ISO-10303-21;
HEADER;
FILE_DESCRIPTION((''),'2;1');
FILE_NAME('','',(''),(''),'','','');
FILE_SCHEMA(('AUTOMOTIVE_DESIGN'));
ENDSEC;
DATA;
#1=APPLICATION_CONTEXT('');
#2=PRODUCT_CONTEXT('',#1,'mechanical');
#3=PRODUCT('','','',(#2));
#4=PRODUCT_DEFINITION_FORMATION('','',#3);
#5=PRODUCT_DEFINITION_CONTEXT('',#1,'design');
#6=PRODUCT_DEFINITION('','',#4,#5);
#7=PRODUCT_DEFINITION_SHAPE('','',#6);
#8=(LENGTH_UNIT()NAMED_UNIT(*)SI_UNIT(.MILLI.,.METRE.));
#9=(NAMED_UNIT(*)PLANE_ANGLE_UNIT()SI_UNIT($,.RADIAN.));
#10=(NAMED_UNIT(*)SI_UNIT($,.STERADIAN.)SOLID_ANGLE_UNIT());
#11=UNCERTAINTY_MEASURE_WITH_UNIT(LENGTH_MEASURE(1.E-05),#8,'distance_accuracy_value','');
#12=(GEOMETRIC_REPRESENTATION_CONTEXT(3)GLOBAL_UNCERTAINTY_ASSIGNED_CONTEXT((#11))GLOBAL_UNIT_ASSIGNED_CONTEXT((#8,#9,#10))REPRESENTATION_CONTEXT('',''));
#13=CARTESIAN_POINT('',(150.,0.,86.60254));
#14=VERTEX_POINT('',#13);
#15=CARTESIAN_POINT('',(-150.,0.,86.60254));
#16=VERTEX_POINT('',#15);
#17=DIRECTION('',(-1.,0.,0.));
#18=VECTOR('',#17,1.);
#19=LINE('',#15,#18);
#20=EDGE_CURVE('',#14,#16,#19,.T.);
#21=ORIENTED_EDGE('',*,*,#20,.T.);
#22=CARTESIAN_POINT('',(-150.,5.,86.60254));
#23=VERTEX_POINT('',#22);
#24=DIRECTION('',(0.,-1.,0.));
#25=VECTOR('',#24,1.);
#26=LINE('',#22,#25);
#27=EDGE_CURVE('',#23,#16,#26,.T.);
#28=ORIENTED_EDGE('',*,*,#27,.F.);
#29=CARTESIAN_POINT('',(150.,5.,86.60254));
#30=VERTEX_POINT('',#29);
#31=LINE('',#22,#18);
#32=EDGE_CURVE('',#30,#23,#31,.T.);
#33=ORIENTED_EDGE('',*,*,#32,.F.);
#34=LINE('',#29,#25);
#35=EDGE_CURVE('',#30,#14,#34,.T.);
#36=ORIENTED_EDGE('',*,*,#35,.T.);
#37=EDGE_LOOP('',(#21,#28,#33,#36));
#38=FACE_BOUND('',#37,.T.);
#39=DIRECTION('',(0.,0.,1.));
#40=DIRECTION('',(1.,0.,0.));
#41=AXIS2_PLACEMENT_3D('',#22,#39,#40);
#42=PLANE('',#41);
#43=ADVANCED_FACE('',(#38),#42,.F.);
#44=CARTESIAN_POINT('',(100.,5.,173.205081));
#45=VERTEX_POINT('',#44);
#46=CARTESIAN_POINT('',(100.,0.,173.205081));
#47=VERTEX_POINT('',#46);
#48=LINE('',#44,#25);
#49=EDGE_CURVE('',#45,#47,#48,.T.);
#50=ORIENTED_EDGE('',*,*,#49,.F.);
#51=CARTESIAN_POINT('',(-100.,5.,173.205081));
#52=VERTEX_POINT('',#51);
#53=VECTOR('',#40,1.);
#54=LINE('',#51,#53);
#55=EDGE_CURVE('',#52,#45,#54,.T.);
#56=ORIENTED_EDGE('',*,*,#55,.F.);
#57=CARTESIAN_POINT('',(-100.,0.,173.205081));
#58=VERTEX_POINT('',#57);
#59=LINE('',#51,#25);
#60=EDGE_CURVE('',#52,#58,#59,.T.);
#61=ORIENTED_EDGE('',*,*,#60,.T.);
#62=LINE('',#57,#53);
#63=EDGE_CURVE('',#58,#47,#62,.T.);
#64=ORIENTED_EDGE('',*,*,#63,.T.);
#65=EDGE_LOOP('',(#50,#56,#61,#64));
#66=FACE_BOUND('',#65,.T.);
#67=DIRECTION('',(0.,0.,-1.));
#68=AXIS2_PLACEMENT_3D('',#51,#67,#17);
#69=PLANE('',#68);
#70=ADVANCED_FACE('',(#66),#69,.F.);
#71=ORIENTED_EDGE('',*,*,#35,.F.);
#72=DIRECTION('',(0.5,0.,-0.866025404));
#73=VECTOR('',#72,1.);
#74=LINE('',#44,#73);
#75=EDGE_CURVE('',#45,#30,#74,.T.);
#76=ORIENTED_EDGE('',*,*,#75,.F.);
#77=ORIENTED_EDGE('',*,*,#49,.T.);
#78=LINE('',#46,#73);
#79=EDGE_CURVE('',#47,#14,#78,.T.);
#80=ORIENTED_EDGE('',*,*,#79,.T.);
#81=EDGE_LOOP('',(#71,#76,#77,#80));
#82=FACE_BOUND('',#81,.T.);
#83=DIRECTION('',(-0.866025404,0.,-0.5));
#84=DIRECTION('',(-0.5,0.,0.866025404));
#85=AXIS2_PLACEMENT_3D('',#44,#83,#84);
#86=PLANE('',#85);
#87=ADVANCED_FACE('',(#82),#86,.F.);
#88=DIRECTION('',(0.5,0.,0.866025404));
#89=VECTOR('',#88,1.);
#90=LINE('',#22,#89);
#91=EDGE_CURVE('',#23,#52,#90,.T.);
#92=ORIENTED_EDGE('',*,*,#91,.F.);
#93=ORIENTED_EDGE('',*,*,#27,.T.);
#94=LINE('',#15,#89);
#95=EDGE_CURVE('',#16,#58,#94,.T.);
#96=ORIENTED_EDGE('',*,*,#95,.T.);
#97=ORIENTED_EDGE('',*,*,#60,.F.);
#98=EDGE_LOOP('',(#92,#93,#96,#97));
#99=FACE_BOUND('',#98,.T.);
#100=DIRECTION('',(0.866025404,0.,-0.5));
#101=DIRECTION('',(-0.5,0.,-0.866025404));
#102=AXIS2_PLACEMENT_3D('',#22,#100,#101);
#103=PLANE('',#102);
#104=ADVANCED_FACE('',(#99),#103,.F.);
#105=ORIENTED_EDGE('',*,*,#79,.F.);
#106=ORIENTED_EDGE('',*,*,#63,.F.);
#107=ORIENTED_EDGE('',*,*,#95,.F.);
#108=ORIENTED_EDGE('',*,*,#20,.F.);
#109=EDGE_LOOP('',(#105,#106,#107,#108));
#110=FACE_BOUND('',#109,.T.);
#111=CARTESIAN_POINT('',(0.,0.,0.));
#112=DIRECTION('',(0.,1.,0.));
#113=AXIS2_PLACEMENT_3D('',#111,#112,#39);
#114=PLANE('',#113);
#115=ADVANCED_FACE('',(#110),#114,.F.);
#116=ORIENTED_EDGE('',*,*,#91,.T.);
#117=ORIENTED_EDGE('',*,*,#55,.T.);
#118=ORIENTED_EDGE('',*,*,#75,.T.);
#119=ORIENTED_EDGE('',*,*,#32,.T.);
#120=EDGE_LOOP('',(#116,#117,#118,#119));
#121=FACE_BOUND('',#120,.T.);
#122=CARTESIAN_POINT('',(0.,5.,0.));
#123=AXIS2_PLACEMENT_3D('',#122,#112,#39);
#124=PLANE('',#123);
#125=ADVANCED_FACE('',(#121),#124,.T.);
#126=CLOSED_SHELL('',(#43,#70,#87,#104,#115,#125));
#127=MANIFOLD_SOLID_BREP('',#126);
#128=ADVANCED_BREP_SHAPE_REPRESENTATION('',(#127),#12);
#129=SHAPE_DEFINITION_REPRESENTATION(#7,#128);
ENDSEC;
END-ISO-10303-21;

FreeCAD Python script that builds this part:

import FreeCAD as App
import Part
import Sketcher
from FreeCAD import Vector
Q = App.Units.Quantity


def add_polygon(sketch, points):
    """Adds a closed chain of lines whose ends are joined by coincident constraints."""
    first, n = sketch.GeometryCount, len(points)
    for a, b in zip(points, points[1:] + points[:1]):
        sketch.addGeometry(Part.LineSegment(App.Vector(*a, 0), App.Vector(*b, 0)), False)
    for i in range(n):
        sketch.addConstraint(Sketcher.Constraint("Coincident", first + i, 2, first + (i + 1) % n, 1))

doc = App.newDocument("Part")
body = doc.addObject("PartDesign::Body", "Body")

sketch1 = body.newObject("Sketcher::SketchObject", "Sketch")
sketch1.AttachmentSupport = (doc.getObject("XZ_Plane"), [""])
sketch1.MapMode = "FlatFace"
add_polygon(sketch1, [(-150, 87), (-100, 173), (100, 173), (150, 87)])
sketch1.addConstraint(Sketcher.Constraint("Horizontal", 1))
sketch1.addConstraint(Sketcher.Constraint("Horizontal", 3))
sketch1.addConstraint(Sketcher.Constraint("Equal", 0, 2))
sketch1.addConstraint(Sketcher.Constraint("DistanceX", 1, 1, 1, 2, 200.0))
sketch1.addConstraint(Sketcher.Constraint("DistanceX", 3, 2, 3, 1, 300.0))
sketch1.addConstraint(Sketcher.Constraint("Angle", 0, Q("60 deg")))
sketch1.addConstraint(Sketcher.Constraint("DistanceX", 0, 2, -1, 1, 100.0))
sketch1.addConstraint(Sketcher.Constraint("DistanceY", -1, 1, 0, 2, 173.205081))
pad1 = body.newObject("PartDesign::Pad", "Pad")
pad1.Profile = sketch1
pad1.Length = 5
pad1.Reversed = True

doc.recompute()
